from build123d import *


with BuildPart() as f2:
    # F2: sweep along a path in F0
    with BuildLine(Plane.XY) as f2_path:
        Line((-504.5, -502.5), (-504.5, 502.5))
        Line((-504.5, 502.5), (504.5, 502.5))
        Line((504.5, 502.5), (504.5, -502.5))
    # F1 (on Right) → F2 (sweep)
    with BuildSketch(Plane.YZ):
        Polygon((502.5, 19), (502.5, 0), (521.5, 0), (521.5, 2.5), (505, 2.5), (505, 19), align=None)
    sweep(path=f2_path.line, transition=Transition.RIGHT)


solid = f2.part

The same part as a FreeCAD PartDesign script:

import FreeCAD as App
import Part
import Sketcher
from FreeCAD import Vector

doc = App.newDocument("Part")
body = doc.addObject("PartDesign::Body", "Body")

# Sketch on YZ plane
sketch1 = body.newObject("Sketcher::SketchObject", "Sketch")
sketch1.AttachmentSupport = (doc.getObject("YZ_Plane"), [""])
sketch1.MapMode = "FlatFace"
sketch1.addGeometry(Part.LineSegment(Vector(502.5, 19, 0), Vector(502.5, 0, 0)), False)
sketch1.addGeometry(Part.LineSegment(Vector(502.5, 0, 0), Vector(521.5, 0, 0)), False)
sketch1.addGeometry(Part.LineSegment(Vector(521.5, 0, 0), Vector(521.5, 2.5, 0)), False)
sketch1.addGeometry(Part.LineSegment(Vector(521.5, 2.5, 0), Vector(505, 2.5, 0)), False)
sketch1.addGeometry(Part.LineSegment(Vector(505, 2.5, 0), Vector(505, 19, 0)), False)
sketch1.addGeometry(Part.LineSegment(Vector(505, 19, 0), Vector(502.5, 19, 0)), False)
sketch1.addConstraint(Sketcher.Constraint("Coincident", 0, 2, 1, 1))
sketch1.addConstraint(Sketcher.Constraint("Coincident", 1, 2, 2, 1))
sketch1.addConstraint(Sketcher.Constraint("Coincident", 2, 2, 3, 1))
sketch1.addConstraint(Sketcher.Constraint("Coincident", 3, 2, 4, 1))
sketch1.addConstraint(Sketcher.Constraint("Coincident", 4, 2, 5, 1))
sketch1.addConstraint(Sketcher.Constraint("Coincident", 5, 2, 0, 1))
sketch1.addConstraint(Sketcher.Constraint("Vertical", 0))
sketch1.addConstraint(Sketcher.Constraint("Horizontal", 1))
sketch1.addConstraint(Sketcher.Constraint("Vertical", 2))
sketch1.addConstraint(Sketcher.Constraint("Horizontal", 3))
sketch1.addConstraint(Sketcher.Constraint("Vertical", 4))
sketch1.addConstraint(Sketcher.Constraint("Horizontal", 5))
sketch1.addConstraint(Sketcher.Constraint("PointOnObject", 0, 2, -1))
sketch1.addConstraint(Sketcher.Constraint("Equal", 1, 0))
sketch1.addConstraint(Sketcher.Constraint("Equal", 5, 2))
sketch1.addConstraint(Sketcher.Constraint("DistanceX", 1, 1, 1, 2, 19.0))
sketch1.addConstraint(Sketcher.Constraint("DistanceX", 3, 2, 3, 1, 16.5))
sketch1.addConstraint(Sketcher.Constraint("DistanceX", -1, 1, 3, 2, 505.0))

# Sketch on XY plane
sketch2 = body.newObject("Sketcher::SketchObject", "Sketch001")
sketch2.AttachmentSupport = (doc.getObject("XY_Plane"), [""])
sketch2.MapMode = "FlatFace"
sketch2.addGeometry(Part.LineSegment(Vector(-504, -502, 0), Vector(-504, 502, 0)), False)
sketch2.addGeometry(Part.LineSegment(Vector(-504, 502, 0), Vector(504, 502, 0)), False)
sketch2.addGeometry(Part.LineSegment(Vector(504, 502, 0), Vector(504, -502, 0)), False)
sketch2.addConstraint(Sketcher.Constraint("Coincident", 0, 2, 1, 1))
sketch2.addConstraint(Sketcher.Constraint("Coincident", 1, 2, 2, 1))
sketch2.addConstraint(Sketcher.Constraint("Vertical", 0))
sketch2.addConstraint(Sketcher.Constraint("Horizontal", 1))
sketch2.addConstraint(Sketcher.Constraint("Vertical", 2))
sketch2.addConstraint(Sketcher.Constraint("Symmetric", 0, 1, 1, 2, -1, 1))
sketch2.addConstraint(Sketcher.Constraint("Horizontal", 0, 1, 2, 2))
sketch2.addConstraint(Sketcher.Constraint("DistanceX", 1, 1, 1, 2, 1009.0))
sketch2.addConstraint(Sketcher.Constraint("DistanceY", 0, 1, 0, 2, 1005.0))
doc.recompute()

additivepipe = body.newObject("PartDesign::AdditivePipe", "AdditivePipe")
additivepipe.Profile = sketch1
additivepipe.Spine = (sketch2, ["Edge1", "Edge2", "Edge3"])
additivepipe.Transition = "Right corner"

doc.recompute()
